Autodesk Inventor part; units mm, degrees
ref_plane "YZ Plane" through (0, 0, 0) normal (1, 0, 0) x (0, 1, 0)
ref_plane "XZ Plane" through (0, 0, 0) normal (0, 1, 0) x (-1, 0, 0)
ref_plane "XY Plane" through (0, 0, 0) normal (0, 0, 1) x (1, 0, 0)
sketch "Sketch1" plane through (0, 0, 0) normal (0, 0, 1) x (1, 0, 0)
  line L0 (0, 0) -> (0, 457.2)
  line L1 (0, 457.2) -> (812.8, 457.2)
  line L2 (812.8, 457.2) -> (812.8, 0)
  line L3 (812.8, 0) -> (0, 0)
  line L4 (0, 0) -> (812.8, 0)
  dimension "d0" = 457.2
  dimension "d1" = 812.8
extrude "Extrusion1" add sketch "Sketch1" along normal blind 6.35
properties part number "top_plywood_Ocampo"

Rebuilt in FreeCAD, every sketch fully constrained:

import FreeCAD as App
import Part
import Sketcher
from FreeCAD import Vector
Q = App.Units.Quantity


def add_polygon(sketch, points):
    """Adds a closed chain of lines whose ends are joined by coincident constraints."""
    first, n = sketch.GeometryCount, len(points)
    for a, b in zip(points, points[1:] + points[:1]):
        sketch.addGeometry(Part.LineSegment(App.Vector(*a, 0), App.Vector(*b, 0)), False)
    for i in range(n):
        sketch.addConstraint(Sketcher.Constraint("Coincident", first + i, 2, first + (i + 1) % n, 1))

doc = App.newDocument("Part")
body = doc.addObject("PartDesign::Body", "Body")

# Sketch on XY plane
sketch1 = body.newObject("Sketcher::SketchObject", "Sketch")
sketch1.AttachmentSupport = (doc.getObject("XY_Plane"), [""])
sketch1.MapMode = "FlatFace"
add_polygon(sketch1, [(0, 457.2), (0, 0), (812.8, 0), (812.8, 457.2)])  # lines 0-3
sketch1.addConstraint([
    Sketcher.Constraint("Vertical", 0),
    Sketcher.Constraint("Horizontal", 1),
    Sketcher.Constraint("Vertical", 2),
    Sketcher.Constraint("Horizontal", 3),
    Sketcher.Constraint("Coincident", 0, 2, -1, 1),
    Sketcher.Constraint("DistanceX", 1, 1, 1, 2, Q("32 in")),
    Sketcher.Constraint("DistanceY", 0, 2, 0, 1, Q("18 in")),
])
pad1 = body.newObject("PartDesign::Pad", "Pad")
pad1.Profile = sketch1
pad1.Length = Q("0.25 in")

doc.recompute()
